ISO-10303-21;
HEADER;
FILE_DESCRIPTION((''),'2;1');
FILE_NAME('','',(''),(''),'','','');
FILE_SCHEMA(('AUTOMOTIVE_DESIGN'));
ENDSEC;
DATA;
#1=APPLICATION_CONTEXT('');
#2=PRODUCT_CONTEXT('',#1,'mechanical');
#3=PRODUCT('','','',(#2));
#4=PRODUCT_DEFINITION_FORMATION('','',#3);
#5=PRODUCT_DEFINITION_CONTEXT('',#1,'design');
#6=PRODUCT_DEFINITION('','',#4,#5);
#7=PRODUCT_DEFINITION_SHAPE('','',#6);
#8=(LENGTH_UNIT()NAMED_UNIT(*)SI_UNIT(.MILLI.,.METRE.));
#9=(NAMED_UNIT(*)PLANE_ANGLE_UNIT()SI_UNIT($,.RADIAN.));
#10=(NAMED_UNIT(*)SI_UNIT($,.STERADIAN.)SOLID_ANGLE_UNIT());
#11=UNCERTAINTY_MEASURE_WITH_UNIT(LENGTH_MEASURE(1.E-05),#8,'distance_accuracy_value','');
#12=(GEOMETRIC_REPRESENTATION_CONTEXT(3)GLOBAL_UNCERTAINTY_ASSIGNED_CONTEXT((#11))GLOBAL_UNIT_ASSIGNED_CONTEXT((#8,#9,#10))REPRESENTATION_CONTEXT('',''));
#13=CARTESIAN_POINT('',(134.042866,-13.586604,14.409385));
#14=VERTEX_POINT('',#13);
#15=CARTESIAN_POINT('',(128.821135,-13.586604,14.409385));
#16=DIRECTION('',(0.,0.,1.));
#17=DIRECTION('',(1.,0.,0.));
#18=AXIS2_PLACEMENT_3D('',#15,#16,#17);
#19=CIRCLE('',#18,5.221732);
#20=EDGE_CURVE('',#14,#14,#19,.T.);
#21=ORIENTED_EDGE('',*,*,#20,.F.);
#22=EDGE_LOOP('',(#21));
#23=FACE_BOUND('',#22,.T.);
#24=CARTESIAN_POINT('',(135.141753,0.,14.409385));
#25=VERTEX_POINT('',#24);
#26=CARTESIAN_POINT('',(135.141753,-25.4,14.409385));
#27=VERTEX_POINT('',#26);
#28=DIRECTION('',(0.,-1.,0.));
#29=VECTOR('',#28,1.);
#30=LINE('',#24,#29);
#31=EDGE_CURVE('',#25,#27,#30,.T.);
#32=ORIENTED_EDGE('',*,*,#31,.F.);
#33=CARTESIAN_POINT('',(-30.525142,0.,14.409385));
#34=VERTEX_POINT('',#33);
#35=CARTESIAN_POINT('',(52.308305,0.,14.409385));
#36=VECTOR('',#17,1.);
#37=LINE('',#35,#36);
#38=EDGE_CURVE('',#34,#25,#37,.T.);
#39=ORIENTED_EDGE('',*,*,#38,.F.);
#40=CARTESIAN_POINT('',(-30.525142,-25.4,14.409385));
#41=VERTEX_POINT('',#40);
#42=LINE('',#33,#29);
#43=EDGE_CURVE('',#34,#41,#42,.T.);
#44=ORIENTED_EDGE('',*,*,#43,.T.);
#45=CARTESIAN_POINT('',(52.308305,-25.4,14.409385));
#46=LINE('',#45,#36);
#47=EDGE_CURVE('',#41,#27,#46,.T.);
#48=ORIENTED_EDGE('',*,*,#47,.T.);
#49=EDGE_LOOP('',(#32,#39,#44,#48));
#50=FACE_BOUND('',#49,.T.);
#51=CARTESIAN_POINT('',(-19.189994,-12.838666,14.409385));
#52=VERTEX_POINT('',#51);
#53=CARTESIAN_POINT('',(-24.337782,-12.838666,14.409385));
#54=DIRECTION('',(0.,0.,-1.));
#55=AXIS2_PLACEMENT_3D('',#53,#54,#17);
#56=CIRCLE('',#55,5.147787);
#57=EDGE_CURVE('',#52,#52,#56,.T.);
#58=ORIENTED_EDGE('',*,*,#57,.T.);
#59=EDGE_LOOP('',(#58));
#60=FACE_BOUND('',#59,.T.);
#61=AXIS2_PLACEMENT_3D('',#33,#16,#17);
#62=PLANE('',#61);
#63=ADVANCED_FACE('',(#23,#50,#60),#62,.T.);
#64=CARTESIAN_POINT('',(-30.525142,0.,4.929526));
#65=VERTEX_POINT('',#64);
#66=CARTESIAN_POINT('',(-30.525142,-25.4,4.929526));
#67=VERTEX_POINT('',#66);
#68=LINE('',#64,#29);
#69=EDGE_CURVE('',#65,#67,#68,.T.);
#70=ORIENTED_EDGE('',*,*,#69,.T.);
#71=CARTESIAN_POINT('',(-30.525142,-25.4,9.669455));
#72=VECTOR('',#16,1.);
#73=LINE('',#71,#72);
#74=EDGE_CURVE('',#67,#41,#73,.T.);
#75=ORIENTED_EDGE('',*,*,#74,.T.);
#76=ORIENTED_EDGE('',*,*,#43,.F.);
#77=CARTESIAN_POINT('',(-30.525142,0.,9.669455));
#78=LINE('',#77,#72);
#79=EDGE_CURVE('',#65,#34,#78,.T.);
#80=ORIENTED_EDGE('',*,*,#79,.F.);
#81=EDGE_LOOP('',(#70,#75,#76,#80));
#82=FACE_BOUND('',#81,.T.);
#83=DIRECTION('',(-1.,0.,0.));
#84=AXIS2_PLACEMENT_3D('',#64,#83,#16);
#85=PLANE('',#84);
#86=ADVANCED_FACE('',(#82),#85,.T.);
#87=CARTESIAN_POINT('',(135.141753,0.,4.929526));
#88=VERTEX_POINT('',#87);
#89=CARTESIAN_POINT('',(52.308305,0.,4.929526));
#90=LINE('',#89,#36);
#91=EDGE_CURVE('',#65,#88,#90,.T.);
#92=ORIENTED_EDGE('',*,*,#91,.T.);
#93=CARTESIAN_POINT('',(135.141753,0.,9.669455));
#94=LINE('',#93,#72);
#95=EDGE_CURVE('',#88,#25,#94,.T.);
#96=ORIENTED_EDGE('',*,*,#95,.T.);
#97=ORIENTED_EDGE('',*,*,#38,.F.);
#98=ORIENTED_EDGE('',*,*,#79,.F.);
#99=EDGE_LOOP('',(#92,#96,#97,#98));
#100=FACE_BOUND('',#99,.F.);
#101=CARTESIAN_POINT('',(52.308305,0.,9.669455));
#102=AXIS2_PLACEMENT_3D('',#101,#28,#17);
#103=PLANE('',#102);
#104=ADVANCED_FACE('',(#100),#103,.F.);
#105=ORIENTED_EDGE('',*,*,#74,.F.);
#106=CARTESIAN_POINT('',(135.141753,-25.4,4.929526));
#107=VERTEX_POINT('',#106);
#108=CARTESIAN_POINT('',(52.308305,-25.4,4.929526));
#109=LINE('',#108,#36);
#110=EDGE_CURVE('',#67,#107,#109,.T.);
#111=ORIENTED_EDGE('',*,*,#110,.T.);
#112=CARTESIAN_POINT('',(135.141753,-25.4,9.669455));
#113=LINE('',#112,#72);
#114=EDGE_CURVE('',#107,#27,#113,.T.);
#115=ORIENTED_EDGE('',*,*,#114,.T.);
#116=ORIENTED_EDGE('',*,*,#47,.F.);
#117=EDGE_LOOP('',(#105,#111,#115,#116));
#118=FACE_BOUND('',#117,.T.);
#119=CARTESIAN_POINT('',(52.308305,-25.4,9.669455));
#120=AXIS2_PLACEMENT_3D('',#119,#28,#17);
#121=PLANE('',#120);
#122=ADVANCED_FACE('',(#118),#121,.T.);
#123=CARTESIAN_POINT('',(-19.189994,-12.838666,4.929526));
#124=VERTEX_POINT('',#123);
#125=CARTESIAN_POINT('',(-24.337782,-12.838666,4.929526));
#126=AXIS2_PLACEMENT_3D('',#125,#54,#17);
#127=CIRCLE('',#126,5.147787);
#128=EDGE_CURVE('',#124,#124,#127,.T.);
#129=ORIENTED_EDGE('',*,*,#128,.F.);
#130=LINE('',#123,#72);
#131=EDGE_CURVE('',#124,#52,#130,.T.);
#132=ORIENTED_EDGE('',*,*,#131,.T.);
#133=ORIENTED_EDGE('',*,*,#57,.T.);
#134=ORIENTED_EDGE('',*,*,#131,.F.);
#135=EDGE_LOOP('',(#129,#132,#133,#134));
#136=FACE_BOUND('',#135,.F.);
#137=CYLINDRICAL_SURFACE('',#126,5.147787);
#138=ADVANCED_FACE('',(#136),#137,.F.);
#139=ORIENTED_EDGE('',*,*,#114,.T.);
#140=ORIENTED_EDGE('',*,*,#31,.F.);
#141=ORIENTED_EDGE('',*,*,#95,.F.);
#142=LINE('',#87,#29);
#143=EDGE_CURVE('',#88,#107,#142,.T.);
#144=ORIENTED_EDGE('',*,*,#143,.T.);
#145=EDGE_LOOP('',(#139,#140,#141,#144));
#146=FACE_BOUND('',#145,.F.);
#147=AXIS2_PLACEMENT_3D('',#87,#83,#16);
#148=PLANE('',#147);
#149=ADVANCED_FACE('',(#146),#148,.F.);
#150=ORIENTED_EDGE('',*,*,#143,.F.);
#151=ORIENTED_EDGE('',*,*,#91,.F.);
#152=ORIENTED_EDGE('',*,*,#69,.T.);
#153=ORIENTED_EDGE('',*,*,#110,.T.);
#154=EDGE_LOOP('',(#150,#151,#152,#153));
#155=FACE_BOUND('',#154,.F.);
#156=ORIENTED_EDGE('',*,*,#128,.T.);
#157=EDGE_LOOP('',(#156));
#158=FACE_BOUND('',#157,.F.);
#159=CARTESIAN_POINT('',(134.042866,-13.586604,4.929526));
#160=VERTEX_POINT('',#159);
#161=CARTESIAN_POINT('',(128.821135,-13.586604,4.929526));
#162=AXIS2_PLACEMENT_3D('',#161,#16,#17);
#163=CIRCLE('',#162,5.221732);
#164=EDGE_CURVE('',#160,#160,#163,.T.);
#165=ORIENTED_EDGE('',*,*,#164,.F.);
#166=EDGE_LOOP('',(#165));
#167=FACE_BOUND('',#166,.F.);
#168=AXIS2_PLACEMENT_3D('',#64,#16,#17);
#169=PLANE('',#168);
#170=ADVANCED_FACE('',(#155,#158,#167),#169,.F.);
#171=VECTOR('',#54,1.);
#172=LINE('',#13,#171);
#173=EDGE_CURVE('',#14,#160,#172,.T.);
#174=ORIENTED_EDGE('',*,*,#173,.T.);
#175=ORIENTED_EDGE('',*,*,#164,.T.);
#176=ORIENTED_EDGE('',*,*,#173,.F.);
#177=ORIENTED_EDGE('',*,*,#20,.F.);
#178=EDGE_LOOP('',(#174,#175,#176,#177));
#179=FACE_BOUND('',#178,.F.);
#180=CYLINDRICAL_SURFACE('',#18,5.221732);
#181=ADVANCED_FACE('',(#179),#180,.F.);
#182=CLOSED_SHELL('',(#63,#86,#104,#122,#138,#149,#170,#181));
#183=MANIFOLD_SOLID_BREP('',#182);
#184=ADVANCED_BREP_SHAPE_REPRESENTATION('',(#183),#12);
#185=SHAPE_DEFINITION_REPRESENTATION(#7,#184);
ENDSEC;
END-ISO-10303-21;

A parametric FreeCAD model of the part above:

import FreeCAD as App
import Part
import Sketcher
Q = App.Units.Quantity


def add_polygon(sketch, points):
    """Adds a closed chain of lines whose ends are joined by coincident constraints."""
    first, n = sketch.GeometryCount, len(points)
    for a, b in zip(points, points[1:] + points[:1]):
        sketch.addGeometry(Part.LineSegment(App.Vector(*a, 0), App.Vector(*b, 0)), False)
    for i in range(n):
        sketch.addConstraint(Sketcher.Constraint("Coincident", first + i, 2, first + (i + 1) % n, 1))

doc = App.newDocument("Part")
body = doc.addObject("PartDesign::Body", "Body")

# Sketch on XZ plane
sketch1 = body.newObject("Sketcher::SketchObject", "Sketch")
sketch1.AttachmentSupport = (doc.getObject("XZ_Plane"), [""])
sketch1.MapMode = "FlatFace"
add_polygon(sketch1, [(-31, 14), (-31, 5), (135, 5), (135, 14)])  # lines 0-3
sketch1.addConstraint(Sketcher.Constraint("Vertical", 0))
sketch1.addConstraint(Sketcher.Constraint("Horizontal", 1))
sketch1.addConstraint(Sketcher.Constraint("Vertical", 2))
sketch1.addConstraint(Sketcher.Constraint("Horizontal", 3))
sketch1.addConstraint(Sketcher.Constraint("DistanceY", 0, 2, 0, 1, 9.479858))
sketch1.addConstraint(Sketcher.Constraint("DistanceX", 1, 1, 1, 2, 165.666895))
sketch1.addConstraint(Sketcher.Constraint("DistanceX", 0, 2, -1, 1, 30.525142))
sketch1.addConstraint(Sketcher.Constraint("DistanceY", -1, 1, 0, 2, 4.929526))
pad1 = body.newObject("PartDesign::Pad", "Pad")
pad1.Profile = sketch1
pad1.Length = Q("1 in")

# Sketch on XY plane
sketch2 = body.newObject("Sketcher::SketchObject", "Sketch001")
sketch2.AttachmentSupport = (doc.getObject("XY_Plane"), [""])
sketch2.MapMode = "FlatFace"
sketch2.AttachmentOffset = App.Placement(App.Vector(0, 0, 4.929526), App.Rotation())
sketch2.addGeometry(Part.Circle(App.Vector(-24, -13, 0), App.Vector(0, 0, 1), 5), False)
sketch2.addConstraint(Sketcher.Constraint("Diameter", 0, 10.295575))
sketch2.addConstraint(Sketcher.Constraint("DistanceX", 0, 3, -1, 1, 24.337782))
sketch2.addConstraint(Sketcher.Constraint("DistanceY", 0, 3, -1, 1, 12.838666))
pocket1 = body.newObject("PartDesign::Pocket", "Pocket")
pocket1.Profile = sketch2
pocket1.Length = Q("1 in")
pocket1.Reversed = True

# Sketch on XY plane
sketch3 = body.newObject("Sketcher::SketchObject", "Sketch002")
sketch3.AttachmentSupport = (doc.getObject("XY_Plane"), [""])
sketch3.MapMode = "FlatFace"
sketch3.AttachmentOffset = App.Placement(App.Vector(0, 0, 14.409385), App.Rotation())
sketch3.addGeometry(Part.Circle(App.Vector(129, -14, 0), App.Vector(0, 0, 1), 5), False)
sketch3.addConstraint(Sketcher.Constraint("Diameter", 0, 10.443463))
sketch3.addConstraint(Sketcher.Constraint("DistanceX", -1, 1, 0, 3, 128.821135))
sketch3.addConstraint(Sketcher.Constraint("DistanceY", 0, 3, -1, 1, 13.586604))
pocket2 = body.newObject("PartDesign::Pocket", "Pocket001")
pocket2.Profile = sketch3
pocket2.Length = Q("1 in")

doc.recompute()
